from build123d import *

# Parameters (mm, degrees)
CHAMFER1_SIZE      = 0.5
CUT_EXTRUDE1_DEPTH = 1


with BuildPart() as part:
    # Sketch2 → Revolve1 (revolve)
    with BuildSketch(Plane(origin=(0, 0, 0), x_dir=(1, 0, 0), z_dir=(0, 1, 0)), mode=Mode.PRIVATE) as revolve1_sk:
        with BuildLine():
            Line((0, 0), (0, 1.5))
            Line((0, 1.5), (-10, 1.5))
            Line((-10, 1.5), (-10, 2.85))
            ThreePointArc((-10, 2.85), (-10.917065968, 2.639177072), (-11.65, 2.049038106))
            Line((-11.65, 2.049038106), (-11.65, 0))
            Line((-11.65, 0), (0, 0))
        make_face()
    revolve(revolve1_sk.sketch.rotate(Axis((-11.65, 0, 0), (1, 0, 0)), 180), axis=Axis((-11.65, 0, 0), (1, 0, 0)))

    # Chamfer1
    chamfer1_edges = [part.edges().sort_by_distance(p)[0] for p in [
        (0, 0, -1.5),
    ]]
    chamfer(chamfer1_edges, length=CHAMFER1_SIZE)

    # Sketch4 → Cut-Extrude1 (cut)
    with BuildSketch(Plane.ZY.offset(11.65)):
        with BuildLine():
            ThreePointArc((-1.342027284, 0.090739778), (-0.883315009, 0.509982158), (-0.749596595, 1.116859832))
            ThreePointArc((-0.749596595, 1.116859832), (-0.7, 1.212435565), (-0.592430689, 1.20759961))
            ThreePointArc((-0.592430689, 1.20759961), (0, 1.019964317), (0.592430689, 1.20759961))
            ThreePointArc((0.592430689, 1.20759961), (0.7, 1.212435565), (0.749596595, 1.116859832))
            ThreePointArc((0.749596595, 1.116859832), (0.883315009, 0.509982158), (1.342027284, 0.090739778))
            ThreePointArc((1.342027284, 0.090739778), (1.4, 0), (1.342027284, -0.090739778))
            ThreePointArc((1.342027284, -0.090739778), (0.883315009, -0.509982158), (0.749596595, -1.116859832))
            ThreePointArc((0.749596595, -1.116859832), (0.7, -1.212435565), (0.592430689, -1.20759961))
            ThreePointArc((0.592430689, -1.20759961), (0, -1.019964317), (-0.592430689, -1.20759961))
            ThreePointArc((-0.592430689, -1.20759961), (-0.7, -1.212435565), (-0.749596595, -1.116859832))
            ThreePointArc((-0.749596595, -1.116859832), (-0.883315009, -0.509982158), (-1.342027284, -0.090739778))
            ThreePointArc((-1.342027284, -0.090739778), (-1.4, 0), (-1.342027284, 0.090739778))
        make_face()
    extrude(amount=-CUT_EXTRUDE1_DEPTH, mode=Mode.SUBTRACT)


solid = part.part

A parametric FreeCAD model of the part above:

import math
import FreeCAD as App
import Part
import Sketcher

V = App.Vector
Q = App.Units.Quantity


def edges_at(feature, points):
    """Names of the edges that pass closest to the given points."""
    edges = feature.Shape.Edges
    near = lambda p: min(range(len(edges)), key=lambda i: edges[i].distToShape(Part.Vertex(*p))[0])
    return sorted({f"Edge{near(p) + 1}" for p in points})

doc = App.newDocument("Part")
body = doc.addObject("PartDesign::Body", "Body")

sketch1 = body.newObject("Sketcher::SketchObject", "Sketch")
sketch1.AttachmentSupport = (doc.getObject("XZ_Plane"), [""])
sketch1.MapMode = "FlatFace"
sketch1.addGeometry(Part.LineSegment(V(0, 0, 0), V(0, -1.5, 0)), False)
sketch1.addGeometry(Part.LineSegment(V(0, -1.5, 0), V(-10, -1.5, 0)), False)
sketch1.addGeometry(Part.LineSegment(V(-10, -1.5, 0), V(-10, -2.9, 0)), False)
sketch1.addGeometry(Part.ArcOfCircle(Part.Circle(V(-10, -0.7, 0), V(0, 0, 1), 2.1), math.radians(-142), math.radians(-90)), False)
sketch1.addGeometry(Part.LineSegment(V(-11.7, -2, 0), V(-11.7, 0, 0)), False)
sketch1.addGeometry(Part.LineSegment(V(-11.7, 0, 0), V(0, 0, 0)), False)
sketch1.addConstraint(Sketcher.Constraint("Coincident", 0, 2, 1, 1))
sketch1.addConstraint(Sketcher.Constraint("Coincident", 1, 2, 2, 1))
sketch1.addConstraint(Sketcher.Constraint("Coincident", 2, 2, 3, 2))
sketch1.addConstraint(Sketcher.Constraint("Coincident", 3, 1, 4, 1))
sketch1.addConstraint(Sketcher.Constraint("Coincident", 4, 2, 5, 1))
sketch1.addConstraint(Sketcher.Constraint("Coincident", 5, 2, 0, 1))
sketch1.addConstraint(Sketcher.Constraint("Vertical", 0))
sketch1.addConstraint(Sketcher.Constraint("Horizontal", 1))
sketch1.addConstraint(Sketcher.Constraint("Vertical", 2))
sketch1.addConstraint(Sketcher.Constraint("Vertical", 4))
sketch1.addConstraint(Sketcher.Constraint("Horizontal", 5))
sketch1.addConstraint(Sketcher.Constraint("Coincident", 5, 2, -1, 1))
sketch1.addConstraint(Sketcher.Constraint("Vertical", 3, 3, 1, 2))
sketch1.addConstraint(Sketcher.Constraint("Radius", 3, Q("2.1 mm")))
sketch1.addConstraint(Sketcher.Constraint("DistanceX", 1, 2, 1, 1, Q("10 mm")))
sketch1.addConstraint(Sketcher.Constraint("DistanceY", 0, 2, 0, 1, Q("1.5 mm")))
sketch1.addConstraint(Sketcher.Constraint("DistanceX", 5, 1, 5, 2, Q("11.65 mm")))
sketch1.addConstraint(Sketcher.Constraint("DistanceY", 2, 2, 2, 1, Q("1.35 mm")))
revolution = body.newObject("PartDesign::Revolution", "Revolution")
revolution.Profile = sketch1
revolution.ReferenceAxis = (sketch1, ["H_Axis"])
revolution.Angle = 360
doc.recompute()

chamfer = body.newObject("PartDesign::Chamfer", "Chamfer")
chamfer.Base = (revolution, edges_at(revolution, [(0, 0, -1.5)]))
chamfer.Size = 0.5

sketch2 = body.newObject("Sketcher::SketchObject", "Sketch001")
sketch2.AttachmentSupport = (doc.getObject("YZ_Plane"), [""])
sketch2.MapMode = "FlatFace"
sketch2.AttachmentOffset = App.Placement(V(0, 0, -11.65), App.Rotation())
sketch2.addGeometry(Part.ArcOfCircle(Part.Circle(V(1.02, -1.77, 0), V(0, 0, 1), 1.03), math.radians(85), math.radians(155)), False)
sketch2.addGeometry(Part.ArcOfCircle(Part.Circle(V(0, -1.3, 0), V(0, 0, 1), 0.1), math.radians(-155), math.radians(-25)), False)
sketch2.addGeometry(Part.ArcOfCircle(Part.Circle(V(-1.02, -1.77, 0), V(0, 0, 1), 1.03), math.radians(25), math.radians(95)), False)
sketch2.addGeometry(Part.ArcOfCircle(Part.Circle(V(-1.13, -0.65, 0), V(0, 0, 1), 0.1), math.radians(145), math.radians(275)), False)
sketch2.addGeometry(Part.ArcOfCircle(Part.Circle(V(-2.05, 0, 0), V(0, 0, 1), 1.03), math.radians(-35), math.radians(35)), False)
sketch2.addGeometry(Part.ArcOfCircle(Part.Circle(V(-1.13, 0.65, 0), V(0, 0, 1), 0.1), math.radians(85), math.radians(215)), False)
sketch2.addGeometry(Part.ArcOfCircle(Part.Circle(V(-1.02, 1.77, 0), V(0, 0, 1), 1.03), math.radians(-95), math.radians(-25)), False)
sketch2.addGeometry(Part.ArcOfCircle(Part.Circle(V(0, 1.3, 0), V(0, 0, 1), 0.1), math.radians(25), math.radians(155)), False)
sketch2.addGeometry(Part.ArcOfCircle(Part.Circle(V(1.02, 1.77, 0), V(0, 0, 1), 1.03), math.radians(-155), math.radians(-85)), False)
sketch2.addGeometry(Part.ArcOfCircle(Part.Circle(V(1.13, 0.65, 0), V(0, 0, 1), 0.1), math.radians(-35), math.radians(95)), False)
sketch2.addGeometry(Part.ArcOfCircle(Part.Circle(V(2.05, 0, 0), V(0, 0, 1), 1.03), math.radians(145), math.radians(215)), False)
sketch2.addGeometry(Part.ArcOfCircle(Part.Circle(V(1.13, -0.65, 0), V(0, 0, 1), 0.1), math.radians(-95), math.radians(35)), False)
sketch2.addConstraint(Sketcher.Constraint("Tangent", 0, 2, 1, 2))
sketch2.addConstraint(Sketcher.Constraint("Tangent", 1, 1, 2, 1))
sketch2.addConstraint(Sketcher.Constraint("Tangent", 2, 2, 3, 2))
sketch2.addConstraint(Sketcher.Constraint("Tangent", 3, 1, 4, 1))
sketch2.addConstraint(Sketcher.Constraint("Tangent", 4, 2, 5, 2))
sketch2.addConstraint(Sketcher.Constraint("Tangent", 5, 1, 6, 1))
sketch2.addConstraint(Sketcher.Constraint("Tangent", 6, 2, 7, 2))
sketch2.addConstraint(Sketcher.Constraint("Tangent", 7, 1, 8, 1))
sketch2.addConstraint(Sketcher.Constraint("Tangent", 8, 2, 9, 2))
sketch2.addConstraint(Sketcher.Constraint("Tangent", 9, 1, 10, 1))
sketch2.addConstraint(Sketcher.Constraint("Tangent", 10, 2, 11, 2))
sketch2.addConstraint(Sketcher.Constraint("Tangent", 11, 1, 0, 1))
sketch2.addConstraint(Sketcher.Constraint("Equal", 0, 2))
sketch2.addConstraint(Sketcher.Constraint("Equal", 1, 3))
sketch2.addConstraint(Sketcher.Constraint("Equal", 2, 4))
sketch2.addConstraint(Sketcher.Constraint("Equal", 3, 5))
sketch2.addConstraint(Sketcher.Constraint("Equal", 4, 6))
sketch2.addConstraint(Sketcher.Constraint("Equal", 5, 7))
sketch2.addConstraint(Sketcher.Constraint("Equal", 6, 8))
sketch2.addConstraint(Sketcher.Constraint("Equal", 7, 9))
sketch2.addConstraint(Sketcher.Constraint("Equal", 8, 10))
sketch2.addConstraint(Sketcher.Constraint("Equal", 9, 11))
sketch2.addConstraint(Sketcher.Constraint("Symmetric", 0, 3, 6, 3, -1, 1))
sketch2.addConstraint(Sketcher.Constraint("Symmetric", 2, 3, 8, 3, -1, 1))
sketch2.addConstraint(Sketcher.Constraint("Symmetric", 4, 3, 10, 3, -1, 1))
sketch2.addConstraint(Sketcher.Constraint("Symmetric", 0, 3, 2, 3, -2))
sketch2.addConstraint(Sketcher.Constraint("PointOnObject", 4, 3, -1))
sketch2.addConstraint(Sketcher.Constraint("Radius", 1, Q("0.1 mm")))
sketch2.addConstraint(Sketcher.Constraint("DistanceY", 1, 3, -1, 1, Q("1.3 mm")))
sketch2.addConstraint(Sketcher.Constraint("DistanceY", 3, 3, 5, 3, Q("1.3 mm")))
sketch2.addConstraint(Sketcher.Constraint("Radius", 0, Q("1.029074 mm")))
sketch2.addConstraint(Sketcher.Constraint("DistanceX", 3, 1, -1, 1, Q("1.2076 mm")))
pocket1 = body.newObject("PartDesign::Pocket", "Pocket")
pocket1.Profile = sketch2
pocket1.Length = 1
pocket1.Reversed = True

doc.recompute()
